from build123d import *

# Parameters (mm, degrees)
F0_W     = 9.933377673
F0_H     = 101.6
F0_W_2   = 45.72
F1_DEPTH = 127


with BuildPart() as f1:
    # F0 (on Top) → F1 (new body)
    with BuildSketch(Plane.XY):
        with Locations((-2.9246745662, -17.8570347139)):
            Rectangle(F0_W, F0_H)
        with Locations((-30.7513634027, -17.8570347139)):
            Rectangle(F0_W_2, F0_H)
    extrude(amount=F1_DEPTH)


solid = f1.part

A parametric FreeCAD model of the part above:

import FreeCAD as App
import Part
import Sketcher
Q = App.Units.Quantity

doc = App.newDocument("Part")
body = doc.addObject("PartDesign::Body", "Body")

sketch1 = doc.addObject("Sketcher::SketchObject", "Sketch")
body.addObject(sketch1)
sketch1.AttachmentSupport = (doc.XY_Plane, [""])
sketch1.MapMode = "FlatFace"
sketch1.addGeometry([
    Part.LineSegment(App.Vector(2, -69, 0), App.Vector(2, 33, 0)),
    Part.LineSegment(App.Vector(2, 33, 0), App.Vector(-54, 33, 0)),
    Part.LineSegment(App.Vector(-54, 33, 0), App.Vector(-54, -69, 0)),
    Part.LineSegment(App.Vector(-54, -69, 0), App.Vector(2, -69, 0)),
], False)
sketch1.addConstraint([
    Sketcher.Constraint("Coincident", 0, 2, 1, 1),
    Sketcher.Constraint("Coincident", 1, 2, 2, 1),
    Sketcher.Constraint("Coincident", 2, 2, 3, 1),
    Sketcher.Constraint("Coincident", 3, 2, 0, 1),
    Sketcher.Constraint("Vertical", 0),
    Sketcher.Constraint("Horizontal", 1),
    Sketcher.Constraint("Vertical", 2),
    Sketcher.Constraint("Horizontal", 3),
    Sketcher.Constraint("DistanceY", 0, 1, 0, 2, Q("4 in")),
    Sketcher.Constraint("DistanceX", 1, 2, 1, 1, 55.653378),
    Sketcher.Constraint("DistanceX", -1, 1, 0, 2, 2.042014),
    Sketcher.Constraint("DistanceY", -1, 1, 0, 2, 32.942965),
])
pad1 = doc.addObject("PartDesign::Pad", "Pad")
body.addObject(pad1)
pad1.Profile = sketch1
pad1.Length = Q("5 in")

doc.recompute()
